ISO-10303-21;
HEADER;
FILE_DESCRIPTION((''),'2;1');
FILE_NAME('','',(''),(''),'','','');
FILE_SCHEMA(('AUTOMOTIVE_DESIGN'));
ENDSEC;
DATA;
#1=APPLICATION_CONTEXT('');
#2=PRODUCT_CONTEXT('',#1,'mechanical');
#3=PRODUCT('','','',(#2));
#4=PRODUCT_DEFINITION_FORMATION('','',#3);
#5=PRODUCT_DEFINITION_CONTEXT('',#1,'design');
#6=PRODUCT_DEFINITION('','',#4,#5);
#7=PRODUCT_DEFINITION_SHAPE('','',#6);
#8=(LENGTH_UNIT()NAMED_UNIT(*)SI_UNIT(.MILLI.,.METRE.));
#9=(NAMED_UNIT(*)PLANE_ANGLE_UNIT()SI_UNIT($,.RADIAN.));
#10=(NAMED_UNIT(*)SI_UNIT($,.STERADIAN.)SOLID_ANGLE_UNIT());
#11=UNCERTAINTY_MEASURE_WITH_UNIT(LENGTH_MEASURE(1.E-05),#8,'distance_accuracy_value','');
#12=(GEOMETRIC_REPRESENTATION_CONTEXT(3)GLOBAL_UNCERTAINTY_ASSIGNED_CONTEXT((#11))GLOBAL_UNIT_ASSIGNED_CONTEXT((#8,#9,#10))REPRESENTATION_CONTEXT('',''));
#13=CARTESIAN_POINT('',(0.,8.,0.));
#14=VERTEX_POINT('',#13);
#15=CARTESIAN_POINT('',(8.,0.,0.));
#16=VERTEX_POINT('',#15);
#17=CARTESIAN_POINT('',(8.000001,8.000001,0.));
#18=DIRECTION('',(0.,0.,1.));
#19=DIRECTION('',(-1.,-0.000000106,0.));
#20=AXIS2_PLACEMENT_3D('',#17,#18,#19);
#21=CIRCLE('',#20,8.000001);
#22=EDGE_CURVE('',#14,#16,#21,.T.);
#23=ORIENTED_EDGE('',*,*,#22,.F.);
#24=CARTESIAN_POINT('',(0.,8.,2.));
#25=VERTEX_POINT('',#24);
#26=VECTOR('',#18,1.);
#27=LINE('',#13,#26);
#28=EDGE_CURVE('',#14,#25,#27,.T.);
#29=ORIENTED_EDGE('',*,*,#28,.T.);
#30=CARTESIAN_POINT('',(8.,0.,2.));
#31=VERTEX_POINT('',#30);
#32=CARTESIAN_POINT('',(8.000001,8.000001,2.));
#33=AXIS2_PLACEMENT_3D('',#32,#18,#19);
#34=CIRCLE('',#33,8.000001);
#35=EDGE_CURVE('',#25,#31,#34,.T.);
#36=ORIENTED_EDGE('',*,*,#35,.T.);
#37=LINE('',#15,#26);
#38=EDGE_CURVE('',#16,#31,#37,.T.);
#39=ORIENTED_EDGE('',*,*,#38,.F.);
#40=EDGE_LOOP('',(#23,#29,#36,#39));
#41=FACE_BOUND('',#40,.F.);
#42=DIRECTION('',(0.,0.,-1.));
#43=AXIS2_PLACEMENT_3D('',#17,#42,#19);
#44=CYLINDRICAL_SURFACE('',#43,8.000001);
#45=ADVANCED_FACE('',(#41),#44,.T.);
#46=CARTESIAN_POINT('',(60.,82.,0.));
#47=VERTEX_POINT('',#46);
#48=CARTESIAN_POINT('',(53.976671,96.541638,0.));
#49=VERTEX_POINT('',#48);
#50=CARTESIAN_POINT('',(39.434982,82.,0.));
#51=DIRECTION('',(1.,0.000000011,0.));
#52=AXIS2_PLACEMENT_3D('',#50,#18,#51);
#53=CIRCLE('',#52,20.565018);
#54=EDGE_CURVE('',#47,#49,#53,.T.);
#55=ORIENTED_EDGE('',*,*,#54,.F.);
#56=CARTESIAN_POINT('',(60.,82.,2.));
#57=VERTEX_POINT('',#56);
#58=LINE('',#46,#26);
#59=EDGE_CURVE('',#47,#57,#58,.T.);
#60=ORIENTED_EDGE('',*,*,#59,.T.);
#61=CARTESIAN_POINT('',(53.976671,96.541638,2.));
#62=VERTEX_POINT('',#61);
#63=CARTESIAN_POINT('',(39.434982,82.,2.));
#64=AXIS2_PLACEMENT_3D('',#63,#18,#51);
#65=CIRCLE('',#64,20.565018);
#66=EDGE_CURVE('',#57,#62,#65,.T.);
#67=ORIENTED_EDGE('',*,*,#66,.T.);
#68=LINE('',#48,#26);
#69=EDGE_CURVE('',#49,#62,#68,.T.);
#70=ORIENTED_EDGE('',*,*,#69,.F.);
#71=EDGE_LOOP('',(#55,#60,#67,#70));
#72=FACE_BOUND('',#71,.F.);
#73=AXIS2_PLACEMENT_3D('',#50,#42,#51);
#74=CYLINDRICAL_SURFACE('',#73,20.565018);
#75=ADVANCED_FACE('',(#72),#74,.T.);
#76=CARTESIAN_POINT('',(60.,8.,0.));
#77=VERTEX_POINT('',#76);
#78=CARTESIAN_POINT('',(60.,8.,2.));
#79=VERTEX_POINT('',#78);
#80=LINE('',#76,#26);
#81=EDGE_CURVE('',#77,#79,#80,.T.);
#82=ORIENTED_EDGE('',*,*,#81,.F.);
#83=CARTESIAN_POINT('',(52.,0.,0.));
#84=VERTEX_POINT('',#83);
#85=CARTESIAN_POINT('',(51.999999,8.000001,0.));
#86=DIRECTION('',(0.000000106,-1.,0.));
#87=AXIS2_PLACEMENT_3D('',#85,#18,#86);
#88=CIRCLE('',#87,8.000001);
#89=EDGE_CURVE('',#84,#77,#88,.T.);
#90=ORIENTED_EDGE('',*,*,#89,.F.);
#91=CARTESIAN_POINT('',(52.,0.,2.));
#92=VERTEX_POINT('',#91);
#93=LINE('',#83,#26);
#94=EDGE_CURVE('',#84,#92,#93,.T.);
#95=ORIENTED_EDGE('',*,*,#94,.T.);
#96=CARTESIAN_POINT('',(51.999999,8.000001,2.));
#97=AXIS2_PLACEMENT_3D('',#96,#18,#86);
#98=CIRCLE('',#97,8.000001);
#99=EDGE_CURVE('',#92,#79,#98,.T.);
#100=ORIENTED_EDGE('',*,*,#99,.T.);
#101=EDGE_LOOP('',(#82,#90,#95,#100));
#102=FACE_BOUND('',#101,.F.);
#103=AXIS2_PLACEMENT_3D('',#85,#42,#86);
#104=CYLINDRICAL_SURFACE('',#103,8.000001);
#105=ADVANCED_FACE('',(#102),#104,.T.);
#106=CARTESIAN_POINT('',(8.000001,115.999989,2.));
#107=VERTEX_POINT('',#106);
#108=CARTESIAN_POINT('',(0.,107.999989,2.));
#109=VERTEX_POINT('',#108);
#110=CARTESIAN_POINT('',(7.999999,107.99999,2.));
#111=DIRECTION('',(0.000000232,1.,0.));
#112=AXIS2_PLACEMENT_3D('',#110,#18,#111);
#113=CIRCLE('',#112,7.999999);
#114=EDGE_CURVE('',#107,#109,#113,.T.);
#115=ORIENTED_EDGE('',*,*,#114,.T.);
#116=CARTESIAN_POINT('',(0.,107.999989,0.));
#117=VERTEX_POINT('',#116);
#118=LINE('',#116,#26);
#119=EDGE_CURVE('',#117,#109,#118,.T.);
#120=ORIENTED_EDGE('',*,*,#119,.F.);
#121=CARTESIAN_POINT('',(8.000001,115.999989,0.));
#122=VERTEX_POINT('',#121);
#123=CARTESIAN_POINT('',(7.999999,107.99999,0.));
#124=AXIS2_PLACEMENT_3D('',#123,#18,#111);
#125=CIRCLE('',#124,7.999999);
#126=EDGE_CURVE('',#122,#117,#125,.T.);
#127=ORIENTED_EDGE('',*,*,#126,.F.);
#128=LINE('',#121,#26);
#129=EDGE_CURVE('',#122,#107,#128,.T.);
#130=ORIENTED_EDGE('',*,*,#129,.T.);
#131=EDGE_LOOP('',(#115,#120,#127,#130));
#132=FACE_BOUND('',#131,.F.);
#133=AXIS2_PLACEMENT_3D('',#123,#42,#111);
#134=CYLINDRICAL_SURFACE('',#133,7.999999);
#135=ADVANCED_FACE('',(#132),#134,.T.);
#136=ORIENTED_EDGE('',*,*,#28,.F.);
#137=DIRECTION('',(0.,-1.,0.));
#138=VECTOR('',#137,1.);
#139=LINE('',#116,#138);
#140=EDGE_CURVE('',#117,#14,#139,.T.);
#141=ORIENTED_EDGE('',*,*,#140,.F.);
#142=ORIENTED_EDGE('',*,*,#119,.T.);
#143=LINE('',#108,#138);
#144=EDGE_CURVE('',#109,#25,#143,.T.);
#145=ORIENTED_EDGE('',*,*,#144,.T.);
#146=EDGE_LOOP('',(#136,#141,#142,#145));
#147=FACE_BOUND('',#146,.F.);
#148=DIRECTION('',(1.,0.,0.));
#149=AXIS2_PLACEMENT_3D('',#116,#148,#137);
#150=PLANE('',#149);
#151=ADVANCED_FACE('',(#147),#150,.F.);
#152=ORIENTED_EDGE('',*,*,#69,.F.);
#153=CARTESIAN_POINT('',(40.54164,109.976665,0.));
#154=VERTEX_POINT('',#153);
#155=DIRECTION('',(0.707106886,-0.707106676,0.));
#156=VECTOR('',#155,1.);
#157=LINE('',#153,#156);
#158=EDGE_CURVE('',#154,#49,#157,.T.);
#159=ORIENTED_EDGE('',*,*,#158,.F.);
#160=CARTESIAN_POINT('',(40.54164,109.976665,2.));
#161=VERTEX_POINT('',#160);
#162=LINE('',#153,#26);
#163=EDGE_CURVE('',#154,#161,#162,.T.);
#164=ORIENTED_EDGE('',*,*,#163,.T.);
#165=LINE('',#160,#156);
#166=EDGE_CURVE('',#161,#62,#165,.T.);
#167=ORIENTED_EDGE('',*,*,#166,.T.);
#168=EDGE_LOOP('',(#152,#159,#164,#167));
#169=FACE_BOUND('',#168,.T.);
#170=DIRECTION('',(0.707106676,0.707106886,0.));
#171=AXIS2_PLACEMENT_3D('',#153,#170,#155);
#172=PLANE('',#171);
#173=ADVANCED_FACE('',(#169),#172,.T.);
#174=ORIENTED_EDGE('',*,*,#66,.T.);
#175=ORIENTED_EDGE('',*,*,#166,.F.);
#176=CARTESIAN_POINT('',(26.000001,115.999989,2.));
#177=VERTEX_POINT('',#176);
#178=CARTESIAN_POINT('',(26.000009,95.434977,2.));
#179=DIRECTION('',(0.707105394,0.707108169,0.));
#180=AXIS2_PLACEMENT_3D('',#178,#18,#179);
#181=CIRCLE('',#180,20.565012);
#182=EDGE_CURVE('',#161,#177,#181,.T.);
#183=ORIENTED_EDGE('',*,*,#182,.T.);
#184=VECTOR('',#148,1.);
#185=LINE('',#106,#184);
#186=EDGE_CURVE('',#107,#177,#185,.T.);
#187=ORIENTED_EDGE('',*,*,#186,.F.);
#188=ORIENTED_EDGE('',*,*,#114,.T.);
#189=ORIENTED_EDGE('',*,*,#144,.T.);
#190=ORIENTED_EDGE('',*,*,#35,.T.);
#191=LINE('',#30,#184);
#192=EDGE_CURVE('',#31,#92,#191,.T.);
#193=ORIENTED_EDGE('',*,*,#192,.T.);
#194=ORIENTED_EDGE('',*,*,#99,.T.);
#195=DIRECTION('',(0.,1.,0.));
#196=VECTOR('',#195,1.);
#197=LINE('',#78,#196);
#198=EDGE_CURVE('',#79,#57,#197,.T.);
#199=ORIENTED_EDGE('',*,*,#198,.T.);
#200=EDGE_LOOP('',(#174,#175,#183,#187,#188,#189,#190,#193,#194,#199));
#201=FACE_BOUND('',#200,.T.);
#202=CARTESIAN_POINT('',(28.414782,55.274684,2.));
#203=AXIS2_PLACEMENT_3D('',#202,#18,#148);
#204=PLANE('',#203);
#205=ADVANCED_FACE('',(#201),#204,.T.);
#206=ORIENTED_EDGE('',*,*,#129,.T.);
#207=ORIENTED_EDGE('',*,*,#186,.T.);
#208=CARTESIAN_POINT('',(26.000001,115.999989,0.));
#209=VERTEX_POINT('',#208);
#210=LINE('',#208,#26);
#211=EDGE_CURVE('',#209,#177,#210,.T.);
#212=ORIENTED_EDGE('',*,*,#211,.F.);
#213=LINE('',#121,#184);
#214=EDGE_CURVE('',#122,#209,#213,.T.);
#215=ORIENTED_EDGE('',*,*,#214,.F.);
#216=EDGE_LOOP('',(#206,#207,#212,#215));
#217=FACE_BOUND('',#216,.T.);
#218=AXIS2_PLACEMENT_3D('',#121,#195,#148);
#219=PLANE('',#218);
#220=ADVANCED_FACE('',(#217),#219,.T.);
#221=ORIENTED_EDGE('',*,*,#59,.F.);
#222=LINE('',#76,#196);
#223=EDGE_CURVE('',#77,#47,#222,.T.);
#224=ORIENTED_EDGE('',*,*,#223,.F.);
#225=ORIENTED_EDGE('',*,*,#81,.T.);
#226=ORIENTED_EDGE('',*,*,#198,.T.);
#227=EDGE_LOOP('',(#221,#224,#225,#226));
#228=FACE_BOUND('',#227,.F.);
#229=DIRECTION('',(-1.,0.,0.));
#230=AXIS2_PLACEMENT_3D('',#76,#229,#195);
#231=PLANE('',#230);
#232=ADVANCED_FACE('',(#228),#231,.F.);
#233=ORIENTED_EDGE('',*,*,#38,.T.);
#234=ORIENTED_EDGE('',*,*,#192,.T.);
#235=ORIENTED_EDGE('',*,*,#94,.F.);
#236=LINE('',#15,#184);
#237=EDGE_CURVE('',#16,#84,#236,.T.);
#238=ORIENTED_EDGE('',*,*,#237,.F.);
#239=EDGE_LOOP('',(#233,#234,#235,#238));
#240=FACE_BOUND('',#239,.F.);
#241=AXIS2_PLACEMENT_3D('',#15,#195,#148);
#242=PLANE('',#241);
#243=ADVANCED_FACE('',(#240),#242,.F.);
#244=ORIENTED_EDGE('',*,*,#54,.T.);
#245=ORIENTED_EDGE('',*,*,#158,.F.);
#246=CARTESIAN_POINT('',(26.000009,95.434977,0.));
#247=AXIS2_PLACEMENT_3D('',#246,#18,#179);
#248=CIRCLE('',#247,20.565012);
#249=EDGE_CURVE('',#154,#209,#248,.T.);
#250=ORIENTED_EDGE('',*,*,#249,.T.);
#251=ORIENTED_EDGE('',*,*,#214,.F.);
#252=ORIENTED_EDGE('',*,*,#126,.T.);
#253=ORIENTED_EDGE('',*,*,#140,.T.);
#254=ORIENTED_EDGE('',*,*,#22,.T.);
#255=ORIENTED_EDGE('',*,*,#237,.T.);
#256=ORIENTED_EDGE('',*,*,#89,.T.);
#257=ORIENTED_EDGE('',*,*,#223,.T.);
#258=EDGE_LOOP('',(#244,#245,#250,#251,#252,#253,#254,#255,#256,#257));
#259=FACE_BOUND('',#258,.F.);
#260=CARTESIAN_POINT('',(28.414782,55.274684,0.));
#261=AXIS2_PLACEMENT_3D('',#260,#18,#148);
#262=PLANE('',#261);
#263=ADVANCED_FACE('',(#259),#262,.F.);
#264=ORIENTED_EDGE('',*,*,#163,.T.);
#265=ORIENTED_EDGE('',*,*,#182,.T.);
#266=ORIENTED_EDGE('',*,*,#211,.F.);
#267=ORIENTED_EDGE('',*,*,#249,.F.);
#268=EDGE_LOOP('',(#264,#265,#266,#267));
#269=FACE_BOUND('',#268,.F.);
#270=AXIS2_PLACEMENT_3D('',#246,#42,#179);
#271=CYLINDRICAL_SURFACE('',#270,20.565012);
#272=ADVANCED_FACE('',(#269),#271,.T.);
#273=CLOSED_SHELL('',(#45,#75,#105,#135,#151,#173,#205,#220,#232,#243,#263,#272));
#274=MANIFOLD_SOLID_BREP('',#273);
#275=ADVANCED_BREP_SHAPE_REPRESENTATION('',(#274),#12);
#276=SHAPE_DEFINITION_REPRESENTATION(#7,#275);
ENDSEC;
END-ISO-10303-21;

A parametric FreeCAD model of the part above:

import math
import FreeCAD as App
import Part
import Sketcher

doc = App.newDocument("Part")
body = doc.addObject("PartDesign::Body", "Body")

# Sketch on XY plane
sketch1 = doc.addObject("Sketcher::SketchObject", "Sketch")
body.addObject(sketch1)
sketch1.AttachmentSupport = (doc.XY_Plane, [""])
sketch1.MapMode = "FlatFace"
sketch1.addGeometry([
    Part.LineSegment(App.Vector(60, 8, 0), App.Vector(60, 82, 0)),  # 0
    Part.ArcOfCircle(Part.Circle(App.Vector(39.434982, 82, 0), App.Vector(0, 0, 1), 20.565018), math.radians(0.000001), math.radians(44.999901)),  # 1
    Part.LineSegment(App.Vector(53.976671, 96.541638, 0), App.Vector(40.54164, 109.976665, 0)),  # 2
    Part.ArcOfCircle(Part.Circle(App.Vector(26.000009, 95.434977, 0), App.Vector(0, 0, 1), 20.565012), math.radians(45.000112), math.radians(90.000023)),  # 3
    Part.LineSegment(App.Vector(26.000001, 115.999989, 0), App.Vector(8.000001, 115.999989, 0)),  # 4
    Part.ArcOfCircle(Part.Circle(App.Vector(7.999999, 107.99999, 0), App.Vector(0, 0, 1), 7.999999), math.radians(89.999987), math.radians(180.000006)),  # 5
    Part.LineSegment(App.Vector(0, 107.999989, 0), App.Vector(0, 8, 0)),  # 6
    Part.ArcOfCircle(Part.Circle(App.Vector(8.000001, 8.000001, 0), App.Vector(0, 0, 1), 8.000001), math.radians(-179.999994), math.radians(-90.000006)),  # 7
    Part.LineSegment(App.Vector(8, 0, 0), App.Vector(52, 0, 0)),  # 8
    Part.ArcOfCircle(Part.Circle(App.Vector(51.999999, 8.000001, 0), App.Vector(0, 0, 1), 8.000001), math.radians(-89.999994), math.radians(-0.000006)),  # 9
], False)
sketch1.addConstraint([
    Sketcher.Constraint("Coincident", 0, 2, 1, 1),
    Sketcher.Constraint("Coincident", 1, 2, 2, 1),
    Sketcher.Constraint("Coincident", 2, 2, 3, 1),
    Sketcher.Constraint("Coincident", 3, 2, 4, 1),
    Sketcher.Constraint("Coincident", 4, 2, 5, 1),
    Sketcher.Constraint("Coincident", 5, 2, 6, 1),
    Sketcher.Constraint("Coincident", 6, 2, 7, 1),
    Sketcher.Constraint("Coincident", 7, 2, 8, 1),
    Sketcher.Constraint("Coincident", 8, 2, 9, 1),
    Sketcher.Constraint("Coincident", 9, 2, 0, 1),
    Sketcher.Constraint("Vertical", 0),
    Sketcher.Constraint("Horizontal", 4),
    Sketcher.Constraint("Vertical", 6),
    Sketcher.Constraint("Horizontal", 8),
    Sketcher.Constraint("PointOnObject", 5, 2, -2),
    Sketcher.Constraint("PointOnObject", 7, 2, -1),
    Sketcher.Constraint("Radius", 5, 7.999999),
    Sketcher.Constraint("Radius", 7, 8.000001),
    Sketcher.Constraint("Radius", 9, 8.000001),
    Sketcher.Constraint("DistanceX", 4, 2, 4, 1, 18.0),
    Sketcher.Constraint("DistanceX", 8, 1, 8, 2, 44.0),
    Sketcher.Constraint("DistanceY", 0, 1, 0, 2, 74.0),
    Sketcher.Constraint("Distance", 2, 19.0),
    Sketcher.Constraint("DistanceY", -1, 1, 1, 3, 82.0),
    Sketcher.Constraint("DistanceX", -1, 1, 9, 3, 51.999999),
    Sketcher.Constraint("DistanceY", -1, 1, 0, 2, 82.0),
    Sketcher.Constraint("DistanceX", -1, 1, 3, 2, 26.000001),
    Sketcher.Constraint("DistanceY", -1, 1, 6, 2, 8.0),
    Sketcher.Constraint("DistanceX", -1, 1, 7, 2, 8.0),
    Sketcher.Constraint("DistanceY", 5, 2, 4, 2, 8.0),
    Sketcher.Constraint("Radius", 3, 20.565012),
    Sketcher.Constraint("Radius", 1, 20.565018),
    Sketcher.Constraint("DistanceY", 6, 2, 6, 1, 99.999989),
    Sketcher.Constraint("DistanceX", -1, 1, 3, 3, 26.000009),
    Sketcher.Constraint("DistanceX", -1, 1, 1, 2, 53.976671),
])
pad1 = doc.addObject("PartDesign::Pad", "Pad")
body.addObject(pad1)
pad1.Profile = sketch1
pad1.Length = 2

doc.recompute()
